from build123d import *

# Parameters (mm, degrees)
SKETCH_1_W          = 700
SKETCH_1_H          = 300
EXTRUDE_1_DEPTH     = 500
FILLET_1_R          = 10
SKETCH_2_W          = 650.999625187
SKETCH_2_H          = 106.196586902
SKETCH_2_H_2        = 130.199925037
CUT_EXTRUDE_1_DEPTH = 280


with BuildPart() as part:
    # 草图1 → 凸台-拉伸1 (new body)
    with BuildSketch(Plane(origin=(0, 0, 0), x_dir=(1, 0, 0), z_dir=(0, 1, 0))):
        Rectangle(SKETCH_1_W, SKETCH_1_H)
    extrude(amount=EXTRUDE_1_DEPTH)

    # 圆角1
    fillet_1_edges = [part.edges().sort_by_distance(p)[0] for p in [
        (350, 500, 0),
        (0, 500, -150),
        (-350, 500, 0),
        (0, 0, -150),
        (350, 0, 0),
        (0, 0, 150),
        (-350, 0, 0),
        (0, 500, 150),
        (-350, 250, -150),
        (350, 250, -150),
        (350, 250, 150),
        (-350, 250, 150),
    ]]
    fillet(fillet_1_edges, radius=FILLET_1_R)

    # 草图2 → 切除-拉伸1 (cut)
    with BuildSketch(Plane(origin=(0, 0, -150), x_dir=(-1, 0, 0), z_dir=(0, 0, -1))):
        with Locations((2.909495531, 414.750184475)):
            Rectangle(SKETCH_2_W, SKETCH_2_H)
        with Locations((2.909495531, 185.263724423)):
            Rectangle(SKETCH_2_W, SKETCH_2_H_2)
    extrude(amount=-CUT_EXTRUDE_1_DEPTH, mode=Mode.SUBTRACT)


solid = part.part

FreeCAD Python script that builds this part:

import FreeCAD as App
import Part
import Sketcher
from FreeCAD import Vector


def add_polygon(sketch, points):
    """Adds a closed chain of lines whose ends are joined by coincident constraints."""
    first, n = sketch.GeometryCount, len(points)
    for a, b in zip(points, points[1:] + points[:1]):
        sketch.addGeometry(Part.LineSegment(App.Vector(*a, 0), App.Vector(*b, 0)), False)
    for i in range(n):
        sketch.addConstraint(Sketcher.Constraint("Coincident", first + i, 2, first + (i + 1) % n, 1))

doc = App.newDocument("Part")
body = doc.addObject("PartDesign::Body", "Body")

# Sketch on XZ plane
sketch1 = body.newObject("Sketcher::SketchObject", "Sketch")
sketch1.AttachmentSupport = (doc.getObject("XZ_Plane"), [""])
sketch1.MapMode = "FlatFace"
add_polygon(sketch1, [(-350, -150), (-350, 150), (350, 150), (350, -150)])  # lines 0-3
sketch1.addConstraint(Sketcher.Constraint("Vertical", 0))
sketch1.addConstraint(Sketcher.Constraint("Horizontal", 1))
sketch1.addConstraint(Sketcher.Constraint("Vertical", 2))
sketch1.addConstraint(Sketcher.Constraint("Horizontal", 3))
sketch1.addConstraint(Sketcher.Constraint("Symmetric", 0, 2, 2, 2, -1, 1))
sketch1.addConstraint(Sketcher.Constraint("DistanceX", 1, 1, 1, 2, 700.0))
sketch1.addConstraint(Sketcher.Constraint("DistanceY", 0, 1, 0, 2, 300.0))
pad1 = body.newObject("PartDesign::Pad", "Pad")
pad1.Profile = sketch1
pad1.Length = 500
pad1.Reversed = True
doc.recompute()

fillet = body.newObject("PartDesign::Fillet", "Fillet")
fillet.Base = (pad1, ["Edge1"])
fillet.UseAllEdges = True
fillet.Radius = 10

# Sketch on XY plane
sketch2 = body.newObject("Sketcher::SketchObject", "Sketch001")
sketch2.AttachmentSupport = (doc.getObject("XY_Plane"), [""])
sketch2.MapMode = "FlatFace"
sketch2.AttachmentOffset = App.Placement(Vector(0, 0, -150), App.Rotation())
add_polygon(sketch2, [(323, 468), (323, 362), (-328, 362), (-328, 468)])  # lines 0-3
add_polygon(sketch2, [(323, 250), (323, 120), (-328, 120), (-328, 250)])  # lines 4-7
sketch2.addConstraint(Sketcher.Constraint("Vertical", 0))
sketch2.addConstraint(Sketcher.Constraint("Horizontal", 1))
sketch2.addConstraint(Sketcher.Constraint("Vertical", 2))
sketch2.addConstraint(Sketcher.Constraint("Horizontal", 3))
sketch2.addConstraint(Sketcher.Constraint("Vertical", 4))
sketch2.addConstraint(Sketcher.Constraint("Horizontal", 5))
sketch2.addConstraint(Sketcher.Constraint("Vertical", 6))
sketch2.addConstraint(Sketcher.Constraint("Horizontal", 7))
sketch2.addConstraint(Sketcher.Constraint("Vertical", 3, 2, 4, 2))
sketch2.addConstraint(Sketcher.Constraint("Vertical", 2, 2, 5, 2))
sketch2.addConstraint(Sketcher.Constraint("DistanceX", 1, 2, 1, 1, 650.999625))
sketch2.addConstraint(Sketcher.Constraint("DistanceY", 0, 2, 0, 1, 106.196587))
sketch2.addConstraint(Sketcher.Constraint("DistanceY", 4, 2, 4, 1, 130.199925))
sketch2.addConstraint(Sketcher.Constraint("DistanceY", -1, 1, 0, 2, 361.651891))
sketch2.addConstraint(Sketcher.Constraint("DistanceX", 1, 2, -1, 1, 328.409308))
sketch2.addConstraint(Sketcher.Constraint("DistanceY", -1, 1, 4, 2, 120.163762))
pocket1 = body.newObject("PartDesign::Pocket", "Pocket")
pocket1.Profile = sketch2
pocket1.Length = 280
pocket1.Reversed = True

doc.recompute()
